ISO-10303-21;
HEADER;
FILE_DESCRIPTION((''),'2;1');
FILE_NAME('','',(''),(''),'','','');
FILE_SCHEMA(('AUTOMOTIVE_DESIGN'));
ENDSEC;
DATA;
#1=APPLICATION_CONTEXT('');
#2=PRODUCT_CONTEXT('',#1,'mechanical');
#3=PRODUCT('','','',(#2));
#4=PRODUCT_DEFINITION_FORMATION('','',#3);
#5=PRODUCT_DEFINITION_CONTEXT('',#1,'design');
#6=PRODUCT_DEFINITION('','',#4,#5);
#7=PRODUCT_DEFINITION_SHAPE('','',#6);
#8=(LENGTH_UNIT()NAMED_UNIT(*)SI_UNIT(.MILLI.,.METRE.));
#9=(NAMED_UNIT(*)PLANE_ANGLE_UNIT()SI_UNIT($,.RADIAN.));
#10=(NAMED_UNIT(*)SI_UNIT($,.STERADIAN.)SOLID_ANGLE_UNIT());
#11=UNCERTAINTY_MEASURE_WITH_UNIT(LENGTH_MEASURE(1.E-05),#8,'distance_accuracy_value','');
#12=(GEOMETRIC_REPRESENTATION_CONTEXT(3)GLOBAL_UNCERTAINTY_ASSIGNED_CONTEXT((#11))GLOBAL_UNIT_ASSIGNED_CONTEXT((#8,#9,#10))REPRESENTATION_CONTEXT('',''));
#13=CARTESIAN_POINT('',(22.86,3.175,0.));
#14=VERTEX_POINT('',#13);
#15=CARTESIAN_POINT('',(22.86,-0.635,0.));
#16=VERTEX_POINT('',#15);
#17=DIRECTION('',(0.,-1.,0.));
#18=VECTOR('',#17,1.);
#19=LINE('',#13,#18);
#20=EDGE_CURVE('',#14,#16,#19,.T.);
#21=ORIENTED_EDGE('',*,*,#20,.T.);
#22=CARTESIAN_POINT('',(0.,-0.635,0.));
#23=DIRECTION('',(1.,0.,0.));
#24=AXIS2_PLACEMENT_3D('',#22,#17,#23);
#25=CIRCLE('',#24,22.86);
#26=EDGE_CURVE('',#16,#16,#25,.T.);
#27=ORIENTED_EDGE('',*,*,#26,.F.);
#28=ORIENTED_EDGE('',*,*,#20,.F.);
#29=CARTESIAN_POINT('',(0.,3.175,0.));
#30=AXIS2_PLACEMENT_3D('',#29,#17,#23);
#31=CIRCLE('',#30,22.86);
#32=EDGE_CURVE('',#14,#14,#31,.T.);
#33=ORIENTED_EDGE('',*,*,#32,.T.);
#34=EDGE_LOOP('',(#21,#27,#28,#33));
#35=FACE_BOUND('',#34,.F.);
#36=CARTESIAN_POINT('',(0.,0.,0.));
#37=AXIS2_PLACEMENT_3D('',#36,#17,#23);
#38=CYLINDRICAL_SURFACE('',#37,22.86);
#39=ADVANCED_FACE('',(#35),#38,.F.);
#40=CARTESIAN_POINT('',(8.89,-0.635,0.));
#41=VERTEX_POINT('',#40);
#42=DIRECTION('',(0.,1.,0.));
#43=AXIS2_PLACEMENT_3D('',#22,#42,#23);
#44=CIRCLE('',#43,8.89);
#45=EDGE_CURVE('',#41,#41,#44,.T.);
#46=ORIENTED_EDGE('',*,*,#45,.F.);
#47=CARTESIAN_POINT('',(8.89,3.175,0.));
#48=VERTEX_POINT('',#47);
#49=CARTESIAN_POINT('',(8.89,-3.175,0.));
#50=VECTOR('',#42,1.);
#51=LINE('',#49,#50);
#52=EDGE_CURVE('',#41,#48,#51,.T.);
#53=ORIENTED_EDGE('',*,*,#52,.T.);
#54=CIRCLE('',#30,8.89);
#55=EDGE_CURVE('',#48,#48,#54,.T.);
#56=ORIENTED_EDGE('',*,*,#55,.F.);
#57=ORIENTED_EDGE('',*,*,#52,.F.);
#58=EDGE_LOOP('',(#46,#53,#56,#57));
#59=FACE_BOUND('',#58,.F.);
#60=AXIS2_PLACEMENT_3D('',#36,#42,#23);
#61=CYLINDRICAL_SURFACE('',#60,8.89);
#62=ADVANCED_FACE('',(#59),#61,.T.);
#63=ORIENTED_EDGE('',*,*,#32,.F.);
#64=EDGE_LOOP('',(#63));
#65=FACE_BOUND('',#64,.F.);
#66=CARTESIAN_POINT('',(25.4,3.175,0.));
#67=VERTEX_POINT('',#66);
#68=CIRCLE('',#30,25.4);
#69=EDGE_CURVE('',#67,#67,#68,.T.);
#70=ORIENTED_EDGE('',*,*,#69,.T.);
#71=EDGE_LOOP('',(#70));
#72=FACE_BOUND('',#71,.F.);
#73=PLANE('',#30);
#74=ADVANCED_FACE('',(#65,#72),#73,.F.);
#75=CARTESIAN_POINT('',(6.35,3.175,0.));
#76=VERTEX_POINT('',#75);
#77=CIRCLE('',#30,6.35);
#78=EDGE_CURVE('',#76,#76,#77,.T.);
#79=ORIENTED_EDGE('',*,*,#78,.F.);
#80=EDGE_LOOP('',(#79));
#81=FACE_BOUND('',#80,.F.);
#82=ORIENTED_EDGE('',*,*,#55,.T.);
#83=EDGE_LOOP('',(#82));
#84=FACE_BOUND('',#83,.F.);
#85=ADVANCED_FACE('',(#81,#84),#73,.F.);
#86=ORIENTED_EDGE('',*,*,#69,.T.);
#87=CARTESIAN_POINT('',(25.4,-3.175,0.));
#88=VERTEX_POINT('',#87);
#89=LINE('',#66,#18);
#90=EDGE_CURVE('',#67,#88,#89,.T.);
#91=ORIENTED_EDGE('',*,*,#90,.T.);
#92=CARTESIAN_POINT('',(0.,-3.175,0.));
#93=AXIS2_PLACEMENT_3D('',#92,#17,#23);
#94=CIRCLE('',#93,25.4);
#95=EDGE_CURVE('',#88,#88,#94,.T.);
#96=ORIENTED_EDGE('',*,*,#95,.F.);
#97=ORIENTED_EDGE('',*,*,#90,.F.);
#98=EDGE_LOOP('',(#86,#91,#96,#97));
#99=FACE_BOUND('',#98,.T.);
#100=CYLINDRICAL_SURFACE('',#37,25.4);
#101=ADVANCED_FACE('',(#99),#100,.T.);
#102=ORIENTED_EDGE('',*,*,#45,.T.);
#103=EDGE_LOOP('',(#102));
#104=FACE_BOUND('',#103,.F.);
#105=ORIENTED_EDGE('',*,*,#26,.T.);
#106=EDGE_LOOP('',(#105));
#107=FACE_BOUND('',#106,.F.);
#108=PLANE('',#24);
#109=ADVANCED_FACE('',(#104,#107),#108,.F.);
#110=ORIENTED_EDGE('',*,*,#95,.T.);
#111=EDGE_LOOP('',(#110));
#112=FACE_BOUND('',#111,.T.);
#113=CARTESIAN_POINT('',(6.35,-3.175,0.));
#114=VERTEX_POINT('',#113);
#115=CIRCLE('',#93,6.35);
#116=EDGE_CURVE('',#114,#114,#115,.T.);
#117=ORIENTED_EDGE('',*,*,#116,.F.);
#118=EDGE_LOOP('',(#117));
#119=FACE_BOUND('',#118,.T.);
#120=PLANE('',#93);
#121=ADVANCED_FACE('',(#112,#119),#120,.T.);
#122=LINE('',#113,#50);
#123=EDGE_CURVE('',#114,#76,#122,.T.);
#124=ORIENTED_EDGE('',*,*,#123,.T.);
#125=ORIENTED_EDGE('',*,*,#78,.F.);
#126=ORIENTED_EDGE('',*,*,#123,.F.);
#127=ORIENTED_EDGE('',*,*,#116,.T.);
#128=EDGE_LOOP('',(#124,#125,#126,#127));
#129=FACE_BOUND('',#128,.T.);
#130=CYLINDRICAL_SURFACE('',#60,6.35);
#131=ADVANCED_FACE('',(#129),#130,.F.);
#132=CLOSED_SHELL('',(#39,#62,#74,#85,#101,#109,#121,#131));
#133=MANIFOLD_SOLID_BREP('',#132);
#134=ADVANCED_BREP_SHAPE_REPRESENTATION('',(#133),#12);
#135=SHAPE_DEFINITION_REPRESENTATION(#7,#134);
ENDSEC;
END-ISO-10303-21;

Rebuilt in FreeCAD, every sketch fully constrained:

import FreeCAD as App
import Part
import Sketcher
from FreeCAD import Vector
Q = App.Units.Quantity


def faces_at(feature, points):
    """Names of the faces that lie closest to the given points."""
    faces = feature.Shape.Faces
    near = lambda p: min(range(len(faces)), key=lambda i: faces[i].distToShape(Part.Vertex(*p))[0])
    return sorted({f"Face{near(p) + 1}" for p in points})

doc = App.newDocument("Part")
params = doc.addObject("Spreadsheet::Sheet", "Params")
for row, (alias, value) in enumerate([
    ("sketch1_diameter", "2 in"),
    ("sketch1_diameter2", "0.5 in"),
    ("pad1_length", "0.25 in"),
    ("thickness_wall", "0.1 in"),
], start=1):
    params.set(f"A{row}", alias)
    params.set(f"B{row}", "=" + value)
    params.setAlias(f"B{row}", alias)

body = doc.addObject("PartDesign::Body", "Body")

# Sketch on XZ plane
sketch1 = doc.addObject("Sketcher::SketchObject", "Sketch")
body.addObject(sketch1)
sketch1.AttachmentSupport = (doc.XZ_Plane, [""])
sketch1.MapMode = "FlatFace"
sketch1.addGeometry(Part.Circle(Vector(0, 0, 0), Vector(0, 0, 1), 25), False)
sketch1.addGeometry(Part.Circle(Vector(0, 0, 0), Vector(0, 0, 1), 6), False)
sketch1.addConstraint(Sketcher.Constraint("Coincident", 0, 3, -1, 1))
sketch1.addConstraint(Sketcher.Constraint("Coincident", 1, 3, -1, 1))
sketch1.addConstraint(Sketcher.Constraint("Diameter", 0, Q("2 in")))
sketch1.addConstraint(Sketcher.Constraint("Diameter", 1, Q("0.5 in")))
sketch1.setExpression("Constraints[2]", "Params.sketch1_diameter")
sketch1.setExpression("Constraints[3]", "Params.sketch1_diameter2")
pad1 = doc.addObject("PartDesign::Pad", "Pad")
body.addObject(pad1)
pad1.Profile = sketch1
pad1.setExpression("Length", "Params.pad1_length")
pad1.Midplane = True
doc.recompute()

thickness = doc.addObject("PartDesign::Thickness", "Thickness")
body.addObject(thickness)
thickness.Base = (pad1, faces_at(pad1, [(-10.16, 3.175, -10.16)]))
thickness.setExpression("Value", "Params.thickness_wall")
thickness.Reversed = True
thickness.Join = "Arc"

doc.recompute()
